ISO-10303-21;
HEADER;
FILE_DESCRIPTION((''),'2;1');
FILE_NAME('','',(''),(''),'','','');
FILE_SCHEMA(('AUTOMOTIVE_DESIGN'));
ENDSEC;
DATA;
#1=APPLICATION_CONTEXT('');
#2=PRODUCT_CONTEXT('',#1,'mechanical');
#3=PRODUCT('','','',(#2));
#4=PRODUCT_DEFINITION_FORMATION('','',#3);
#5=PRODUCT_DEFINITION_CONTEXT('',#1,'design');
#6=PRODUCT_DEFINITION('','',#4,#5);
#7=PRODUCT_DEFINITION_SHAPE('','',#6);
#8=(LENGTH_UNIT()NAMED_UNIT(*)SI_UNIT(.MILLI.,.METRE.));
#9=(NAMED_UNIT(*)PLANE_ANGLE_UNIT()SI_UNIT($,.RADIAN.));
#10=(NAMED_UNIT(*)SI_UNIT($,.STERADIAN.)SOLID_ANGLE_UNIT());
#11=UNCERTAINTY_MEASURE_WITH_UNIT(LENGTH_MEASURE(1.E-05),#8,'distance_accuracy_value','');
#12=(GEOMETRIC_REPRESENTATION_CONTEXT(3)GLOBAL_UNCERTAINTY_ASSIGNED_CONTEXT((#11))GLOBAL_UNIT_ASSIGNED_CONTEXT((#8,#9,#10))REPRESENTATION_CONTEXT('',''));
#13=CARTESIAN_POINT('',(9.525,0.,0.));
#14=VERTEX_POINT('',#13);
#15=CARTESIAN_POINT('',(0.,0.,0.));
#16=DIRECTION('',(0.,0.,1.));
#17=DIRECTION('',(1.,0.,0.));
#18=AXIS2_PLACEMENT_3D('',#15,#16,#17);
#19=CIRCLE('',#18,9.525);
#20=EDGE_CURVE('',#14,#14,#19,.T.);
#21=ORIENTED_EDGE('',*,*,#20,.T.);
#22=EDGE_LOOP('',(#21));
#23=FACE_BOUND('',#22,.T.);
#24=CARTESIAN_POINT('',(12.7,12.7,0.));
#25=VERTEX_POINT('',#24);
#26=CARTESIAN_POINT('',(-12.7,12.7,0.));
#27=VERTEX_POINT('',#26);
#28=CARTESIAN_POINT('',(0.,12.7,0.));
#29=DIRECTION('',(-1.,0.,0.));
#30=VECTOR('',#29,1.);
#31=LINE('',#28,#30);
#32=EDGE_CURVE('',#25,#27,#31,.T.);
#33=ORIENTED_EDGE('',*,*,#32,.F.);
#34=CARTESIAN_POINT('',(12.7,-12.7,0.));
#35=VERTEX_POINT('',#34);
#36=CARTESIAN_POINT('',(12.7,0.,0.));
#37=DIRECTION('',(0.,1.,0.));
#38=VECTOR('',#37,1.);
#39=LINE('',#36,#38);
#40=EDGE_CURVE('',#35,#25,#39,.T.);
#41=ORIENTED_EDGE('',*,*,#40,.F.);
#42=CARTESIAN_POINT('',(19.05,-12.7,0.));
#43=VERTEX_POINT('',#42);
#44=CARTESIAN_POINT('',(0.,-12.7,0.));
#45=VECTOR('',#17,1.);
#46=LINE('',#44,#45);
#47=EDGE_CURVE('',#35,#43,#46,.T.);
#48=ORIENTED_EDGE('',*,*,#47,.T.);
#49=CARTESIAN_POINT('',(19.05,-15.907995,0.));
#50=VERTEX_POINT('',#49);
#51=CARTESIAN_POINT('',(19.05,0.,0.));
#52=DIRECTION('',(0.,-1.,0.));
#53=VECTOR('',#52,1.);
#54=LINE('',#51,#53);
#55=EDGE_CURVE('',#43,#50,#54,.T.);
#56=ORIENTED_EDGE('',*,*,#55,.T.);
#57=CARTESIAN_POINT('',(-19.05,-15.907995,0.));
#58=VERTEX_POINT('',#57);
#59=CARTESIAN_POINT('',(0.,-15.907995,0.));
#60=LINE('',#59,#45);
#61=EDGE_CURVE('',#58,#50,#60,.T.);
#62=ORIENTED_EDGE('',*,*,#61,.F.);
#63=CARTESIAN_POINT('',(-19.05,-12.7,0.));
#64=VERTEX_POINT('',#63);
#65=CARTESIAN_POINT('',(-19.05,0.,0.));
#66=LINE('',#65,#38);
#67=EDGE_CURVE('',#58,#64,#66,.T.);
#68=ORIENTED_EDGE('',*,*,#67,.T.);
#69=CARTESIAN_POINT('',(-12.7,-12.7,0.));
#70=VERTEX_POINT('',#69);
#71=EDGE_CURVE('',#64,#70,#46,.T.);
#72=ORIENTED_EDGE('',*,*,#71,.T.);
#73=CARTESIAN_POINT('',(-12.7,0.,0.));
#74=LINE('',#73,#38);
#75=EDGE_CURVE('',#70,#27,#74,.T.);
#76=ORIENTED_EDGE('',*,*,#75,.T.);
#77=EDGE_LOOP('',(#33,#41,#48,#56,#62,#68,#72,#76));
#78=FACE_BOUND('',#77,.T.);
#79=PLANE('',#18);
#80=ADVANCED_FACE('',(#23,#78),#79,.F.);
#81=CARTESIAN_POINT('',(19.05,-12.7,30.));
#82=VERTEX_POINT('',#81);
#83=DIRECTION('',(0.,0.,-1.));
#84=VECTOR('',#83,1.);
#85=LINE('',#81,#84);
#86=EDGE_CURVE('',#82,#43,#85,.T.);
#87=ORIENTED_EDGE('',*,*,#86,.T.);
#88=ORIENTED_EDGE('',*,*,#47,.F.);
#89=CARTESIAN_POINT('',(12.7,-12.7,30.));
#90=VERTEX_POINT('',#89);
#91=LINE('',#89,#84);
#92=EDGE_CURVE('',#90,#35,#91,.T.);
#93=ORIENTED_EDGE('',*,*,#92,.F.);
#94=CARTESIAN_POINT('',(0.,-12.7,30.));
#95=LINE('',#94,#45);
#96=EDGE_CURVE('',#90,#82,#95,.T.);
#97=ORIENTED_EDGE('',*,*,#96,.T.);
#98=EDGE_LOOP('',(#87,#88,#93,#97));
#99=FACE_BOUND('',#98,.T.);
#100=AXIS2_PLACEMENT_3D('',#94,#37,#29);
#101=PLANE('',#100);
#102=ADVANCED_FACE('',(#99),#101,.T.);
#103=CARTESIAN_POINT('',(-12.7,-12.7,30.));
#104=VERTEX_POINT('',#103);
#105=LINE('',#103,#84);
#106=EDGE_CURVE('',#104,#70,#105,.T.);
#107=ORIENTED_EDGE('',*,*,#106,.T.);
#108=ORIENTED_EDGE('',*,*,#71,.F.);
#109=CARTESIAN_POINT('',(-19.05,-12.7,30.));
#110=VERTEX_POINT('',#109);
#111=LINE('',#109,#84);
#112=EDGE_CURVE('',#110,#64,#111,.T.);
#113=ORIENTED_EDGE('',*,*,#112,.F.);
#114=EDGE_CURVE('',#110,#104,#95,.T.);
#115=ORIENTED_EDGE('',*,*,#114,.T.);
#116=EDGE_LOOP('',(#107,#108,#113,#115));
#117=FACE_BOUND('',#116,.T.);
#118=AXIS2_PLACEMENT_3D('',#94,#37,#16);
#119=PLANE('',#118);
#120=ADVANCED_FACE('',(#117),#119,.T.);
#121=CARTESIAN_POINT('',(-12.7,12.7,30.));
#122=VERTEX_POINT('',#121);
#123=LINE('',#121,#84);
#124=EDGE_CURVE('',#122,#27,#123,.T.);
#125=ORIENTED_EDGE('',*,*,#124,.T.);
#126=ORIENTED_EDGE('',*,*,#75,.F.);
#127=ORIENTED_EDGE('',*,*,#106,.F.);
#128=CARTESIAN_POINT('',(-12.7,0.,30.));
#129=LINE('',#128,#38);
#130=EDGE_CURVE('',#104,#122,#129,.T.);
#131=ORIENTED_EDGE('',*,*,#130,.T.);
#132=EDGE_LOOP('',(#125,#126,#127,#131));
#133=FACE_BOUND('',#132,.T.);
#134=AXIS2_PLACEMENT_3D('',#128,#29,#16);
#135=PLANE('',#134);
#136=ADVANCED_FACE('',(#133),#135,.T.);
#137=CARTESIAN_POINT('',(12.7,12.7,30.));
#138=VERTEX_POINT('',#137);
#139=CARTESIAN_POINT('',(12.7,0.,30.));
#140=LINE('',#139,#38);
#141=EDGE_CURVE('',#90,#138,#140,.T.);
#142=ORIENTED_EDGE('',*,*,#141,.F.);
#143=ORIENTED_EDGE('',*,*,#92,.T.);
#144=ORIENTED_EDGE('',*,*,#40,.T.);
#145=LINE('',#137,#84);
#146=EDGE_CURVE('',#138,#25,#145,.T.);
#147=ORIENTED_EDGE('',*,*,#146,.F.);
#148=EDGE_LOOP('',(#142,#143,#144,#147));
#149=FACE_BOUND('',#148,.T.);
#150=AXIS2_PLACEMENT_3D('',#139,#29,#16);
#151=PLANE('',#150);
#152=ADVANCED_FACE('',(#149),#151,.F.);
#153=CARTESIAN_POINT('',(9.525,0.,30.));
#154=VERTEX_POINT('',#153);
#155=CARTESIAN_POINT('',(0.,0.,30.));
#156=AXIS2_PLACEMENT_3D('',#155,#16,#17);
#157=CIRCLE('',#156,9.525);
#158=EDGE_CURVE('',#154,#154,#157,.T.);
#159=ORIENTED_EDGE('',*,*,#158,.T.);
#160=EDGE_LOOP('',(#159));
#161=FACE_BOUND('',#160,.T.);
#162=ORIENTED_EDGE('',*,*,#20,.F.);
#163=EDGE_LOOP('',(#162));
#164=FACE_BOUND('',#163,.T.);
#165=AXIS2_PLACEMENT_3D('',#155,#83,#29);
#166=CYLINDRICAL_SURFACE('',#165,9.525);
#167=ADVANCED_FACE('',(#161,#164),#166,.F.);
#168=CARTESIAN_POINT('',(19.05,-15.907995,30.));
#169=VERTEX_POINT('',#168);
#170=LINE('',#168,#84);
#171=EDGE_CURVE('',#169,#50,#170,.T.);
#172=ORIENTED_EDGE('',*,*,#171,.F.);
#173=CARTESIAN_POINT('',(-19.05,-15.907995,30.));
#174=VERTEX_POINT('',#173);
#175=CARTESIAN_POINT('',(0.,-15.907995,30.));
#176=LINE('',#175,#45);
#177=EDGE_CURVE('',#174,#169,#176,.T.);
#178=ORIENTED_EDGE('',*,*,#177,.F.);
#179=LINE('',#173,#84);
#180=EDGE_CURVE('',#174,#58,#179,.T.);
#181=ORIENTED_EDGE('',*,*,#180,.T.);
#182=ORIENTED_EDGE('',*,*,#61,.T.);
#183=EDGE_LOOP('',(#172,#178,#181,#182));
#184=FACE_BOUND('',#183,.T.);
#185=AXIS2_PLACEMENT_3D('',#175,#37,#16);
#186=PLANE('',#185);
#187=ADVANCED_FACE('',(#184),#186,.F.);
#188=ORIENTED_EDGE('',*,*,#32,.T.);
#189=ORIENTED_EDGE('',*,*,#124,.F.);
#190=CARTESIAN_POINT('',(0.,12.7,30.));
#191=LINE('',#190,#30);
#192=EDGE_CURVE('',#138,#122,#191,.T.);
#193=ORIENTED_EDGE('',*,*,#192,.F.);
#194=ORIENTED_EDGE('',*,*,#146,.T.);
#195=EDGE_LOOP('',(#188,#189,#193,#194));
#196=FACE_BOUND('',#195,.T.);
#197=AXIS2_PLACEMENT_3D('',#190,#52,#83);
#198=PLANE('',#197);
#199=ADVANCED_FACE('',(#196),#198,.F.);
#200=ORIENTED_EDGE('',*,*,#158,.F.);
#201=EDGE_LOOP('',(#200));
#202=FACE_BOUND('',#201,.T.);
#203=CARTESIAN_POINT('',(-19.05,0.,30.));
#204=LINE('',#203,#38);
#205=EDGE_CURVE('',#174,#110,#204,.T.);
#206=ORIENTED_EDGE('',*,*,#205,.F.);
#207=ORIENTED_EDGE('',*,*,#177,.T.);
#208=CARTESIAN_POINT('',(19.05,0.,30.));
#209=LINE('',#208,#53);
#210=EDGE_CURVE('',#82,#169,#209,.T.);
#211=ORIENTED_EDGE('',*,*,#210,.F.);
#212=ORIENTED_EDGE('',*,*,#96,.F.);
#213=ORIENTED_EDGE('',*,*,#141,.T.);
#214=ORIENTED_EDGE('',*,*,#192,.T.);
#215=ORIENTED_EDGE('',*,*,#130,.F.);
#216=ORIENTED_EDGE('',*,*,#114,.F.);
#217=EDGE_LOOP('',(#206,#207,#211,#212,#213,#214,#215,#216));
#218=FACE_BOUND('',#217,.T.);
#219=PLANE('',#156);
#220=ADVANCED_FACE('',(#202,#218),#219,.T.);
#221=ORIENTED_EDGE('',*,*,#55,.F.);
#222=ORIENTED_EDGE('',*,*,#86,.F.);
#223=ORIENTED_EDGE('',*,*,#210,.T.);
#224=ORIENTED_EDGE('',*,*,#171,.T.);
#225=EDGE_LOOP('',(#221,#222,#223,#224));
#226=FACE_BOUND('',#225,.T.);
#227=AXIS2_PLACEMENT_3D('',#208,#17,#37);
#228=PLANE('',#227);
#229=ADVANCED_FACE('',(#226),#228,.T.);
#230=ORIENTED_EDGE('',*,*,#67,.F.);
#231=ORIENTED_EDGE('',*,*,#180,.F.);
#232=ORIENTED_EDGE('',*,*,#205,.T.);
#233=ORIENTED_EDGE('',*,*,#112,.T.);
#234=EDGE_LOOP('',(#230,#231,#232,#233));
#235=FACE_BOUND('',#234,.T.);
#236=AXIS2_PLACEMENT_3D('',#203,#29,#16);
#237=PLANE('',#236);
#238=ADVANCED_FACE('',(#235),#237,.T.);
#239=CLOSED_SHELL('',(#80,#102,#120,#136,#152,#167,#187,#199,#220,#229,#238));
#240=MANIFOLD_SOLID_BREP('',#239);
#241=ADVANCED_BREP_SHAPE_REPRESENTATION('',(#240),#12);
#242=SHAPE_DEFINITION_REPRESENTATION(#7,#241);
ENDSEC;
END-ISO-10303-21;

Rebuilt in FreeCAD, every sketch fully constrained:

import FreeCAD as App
import Part
import Sketcher
Q = App.Units.Quantity


def add_polygon(sketch, points):
    """Adds a closed chain of lines whose ends are joined by coincident constraints."""
    first, n = sketch.GeometryCount, len(points)
    for a, b in zip(points, points[1:] + points[:1]):
        sketch.addGeometry(Part.LineSegment(App.Vector(*a, 0), App.Vector(*b, 0)), False)
    for i in range(n):
        sketch.addConstraint(Sketcher.Constraint("Coincident", first + i, 2, first + (i + 1) % n, 1))

doc = App.newDocument("Part")
body = doc.addObject("PartDesign::Body", "Body")

# Sketch on XY plane
sketch1 = body.newObject("Sketcher::SketchObject", "Sketch")
sketch1.AttachmentSupport = (doc.getObject("XY_Plane"), [""])
sketch1.MapMode = "FlatFace"
add_polygon(sketch1, [(12.7, -12.7), (12.7, 12.7), (-12.7, 12.7), (-12.7, -12.7), (-19.05, -12.7), (-19.05, -15.907995), (19.05, -15.907995), (19.05, -12.7)])  # lines 0-7
sketch1.addGeometry(Part.Circle(App.Vector(0, 0, 0), App.Vector(0, 0, 1), 9.525), False)  # 8
sketch1.addConstraint(Sketcher.Constraint("Vertical", 0))
sketch1.addConstraint(Sketcher.Constraint("Horizontal", 1))
sketch1.addConstraint(Sketcher.Constraint("Vertical", 2))
sketch1.addConstraint(Sketcher.Constraint("Horizontal", 3))
sketch1.addConstraint(Sketcher.Constraint("Vertical", 4))
sketch1.addConstraint(Sketcher.Constraint("Horizontal", 5))
sketch1.addConstraint(Sketcher.Constraint("Vertical", 6))
sketch1.addConstraint(Sketcher.Constraint("Horizontal", 7))
sketch1.addConstraint(Sketcher.Constraint("Coincident", 8, 3, -1, 1))
sketch1.addConstraint(Sketcher.Constraint("Symmetric", 0, 2, 2, 2, -1, 1))
sketch1.addConstraint(Sketcher.Constraint("Symmetric", 3, 2, 6, 2, -2))
sketch1.addConstraint(Sketcher.Constraint("Equal", 1, 0))
sketch1.addConstraint(Sketcher.Constraint("Diameter", 8, Q("0.75 in")))
sketch1.addConstraint(Sketcher.Constraint("DistanceX", 1, 2, 1, 1, Q("1 in")))
sketch1.addConstraint(Sketcher.Constraint("DistanceX", 5, 1, 5, 2, Q("1.5 in")))
sketch1.addConstraint(Sketcher.Constraint("DistanceY", 4, 2, 4, 1, Q("3.207995 mm")))
pad1 = body.newObject("PartDesign::Pad", "Pad")
pad1.Profile = sketch1
pad1.Length = 30

doc.recompute()
